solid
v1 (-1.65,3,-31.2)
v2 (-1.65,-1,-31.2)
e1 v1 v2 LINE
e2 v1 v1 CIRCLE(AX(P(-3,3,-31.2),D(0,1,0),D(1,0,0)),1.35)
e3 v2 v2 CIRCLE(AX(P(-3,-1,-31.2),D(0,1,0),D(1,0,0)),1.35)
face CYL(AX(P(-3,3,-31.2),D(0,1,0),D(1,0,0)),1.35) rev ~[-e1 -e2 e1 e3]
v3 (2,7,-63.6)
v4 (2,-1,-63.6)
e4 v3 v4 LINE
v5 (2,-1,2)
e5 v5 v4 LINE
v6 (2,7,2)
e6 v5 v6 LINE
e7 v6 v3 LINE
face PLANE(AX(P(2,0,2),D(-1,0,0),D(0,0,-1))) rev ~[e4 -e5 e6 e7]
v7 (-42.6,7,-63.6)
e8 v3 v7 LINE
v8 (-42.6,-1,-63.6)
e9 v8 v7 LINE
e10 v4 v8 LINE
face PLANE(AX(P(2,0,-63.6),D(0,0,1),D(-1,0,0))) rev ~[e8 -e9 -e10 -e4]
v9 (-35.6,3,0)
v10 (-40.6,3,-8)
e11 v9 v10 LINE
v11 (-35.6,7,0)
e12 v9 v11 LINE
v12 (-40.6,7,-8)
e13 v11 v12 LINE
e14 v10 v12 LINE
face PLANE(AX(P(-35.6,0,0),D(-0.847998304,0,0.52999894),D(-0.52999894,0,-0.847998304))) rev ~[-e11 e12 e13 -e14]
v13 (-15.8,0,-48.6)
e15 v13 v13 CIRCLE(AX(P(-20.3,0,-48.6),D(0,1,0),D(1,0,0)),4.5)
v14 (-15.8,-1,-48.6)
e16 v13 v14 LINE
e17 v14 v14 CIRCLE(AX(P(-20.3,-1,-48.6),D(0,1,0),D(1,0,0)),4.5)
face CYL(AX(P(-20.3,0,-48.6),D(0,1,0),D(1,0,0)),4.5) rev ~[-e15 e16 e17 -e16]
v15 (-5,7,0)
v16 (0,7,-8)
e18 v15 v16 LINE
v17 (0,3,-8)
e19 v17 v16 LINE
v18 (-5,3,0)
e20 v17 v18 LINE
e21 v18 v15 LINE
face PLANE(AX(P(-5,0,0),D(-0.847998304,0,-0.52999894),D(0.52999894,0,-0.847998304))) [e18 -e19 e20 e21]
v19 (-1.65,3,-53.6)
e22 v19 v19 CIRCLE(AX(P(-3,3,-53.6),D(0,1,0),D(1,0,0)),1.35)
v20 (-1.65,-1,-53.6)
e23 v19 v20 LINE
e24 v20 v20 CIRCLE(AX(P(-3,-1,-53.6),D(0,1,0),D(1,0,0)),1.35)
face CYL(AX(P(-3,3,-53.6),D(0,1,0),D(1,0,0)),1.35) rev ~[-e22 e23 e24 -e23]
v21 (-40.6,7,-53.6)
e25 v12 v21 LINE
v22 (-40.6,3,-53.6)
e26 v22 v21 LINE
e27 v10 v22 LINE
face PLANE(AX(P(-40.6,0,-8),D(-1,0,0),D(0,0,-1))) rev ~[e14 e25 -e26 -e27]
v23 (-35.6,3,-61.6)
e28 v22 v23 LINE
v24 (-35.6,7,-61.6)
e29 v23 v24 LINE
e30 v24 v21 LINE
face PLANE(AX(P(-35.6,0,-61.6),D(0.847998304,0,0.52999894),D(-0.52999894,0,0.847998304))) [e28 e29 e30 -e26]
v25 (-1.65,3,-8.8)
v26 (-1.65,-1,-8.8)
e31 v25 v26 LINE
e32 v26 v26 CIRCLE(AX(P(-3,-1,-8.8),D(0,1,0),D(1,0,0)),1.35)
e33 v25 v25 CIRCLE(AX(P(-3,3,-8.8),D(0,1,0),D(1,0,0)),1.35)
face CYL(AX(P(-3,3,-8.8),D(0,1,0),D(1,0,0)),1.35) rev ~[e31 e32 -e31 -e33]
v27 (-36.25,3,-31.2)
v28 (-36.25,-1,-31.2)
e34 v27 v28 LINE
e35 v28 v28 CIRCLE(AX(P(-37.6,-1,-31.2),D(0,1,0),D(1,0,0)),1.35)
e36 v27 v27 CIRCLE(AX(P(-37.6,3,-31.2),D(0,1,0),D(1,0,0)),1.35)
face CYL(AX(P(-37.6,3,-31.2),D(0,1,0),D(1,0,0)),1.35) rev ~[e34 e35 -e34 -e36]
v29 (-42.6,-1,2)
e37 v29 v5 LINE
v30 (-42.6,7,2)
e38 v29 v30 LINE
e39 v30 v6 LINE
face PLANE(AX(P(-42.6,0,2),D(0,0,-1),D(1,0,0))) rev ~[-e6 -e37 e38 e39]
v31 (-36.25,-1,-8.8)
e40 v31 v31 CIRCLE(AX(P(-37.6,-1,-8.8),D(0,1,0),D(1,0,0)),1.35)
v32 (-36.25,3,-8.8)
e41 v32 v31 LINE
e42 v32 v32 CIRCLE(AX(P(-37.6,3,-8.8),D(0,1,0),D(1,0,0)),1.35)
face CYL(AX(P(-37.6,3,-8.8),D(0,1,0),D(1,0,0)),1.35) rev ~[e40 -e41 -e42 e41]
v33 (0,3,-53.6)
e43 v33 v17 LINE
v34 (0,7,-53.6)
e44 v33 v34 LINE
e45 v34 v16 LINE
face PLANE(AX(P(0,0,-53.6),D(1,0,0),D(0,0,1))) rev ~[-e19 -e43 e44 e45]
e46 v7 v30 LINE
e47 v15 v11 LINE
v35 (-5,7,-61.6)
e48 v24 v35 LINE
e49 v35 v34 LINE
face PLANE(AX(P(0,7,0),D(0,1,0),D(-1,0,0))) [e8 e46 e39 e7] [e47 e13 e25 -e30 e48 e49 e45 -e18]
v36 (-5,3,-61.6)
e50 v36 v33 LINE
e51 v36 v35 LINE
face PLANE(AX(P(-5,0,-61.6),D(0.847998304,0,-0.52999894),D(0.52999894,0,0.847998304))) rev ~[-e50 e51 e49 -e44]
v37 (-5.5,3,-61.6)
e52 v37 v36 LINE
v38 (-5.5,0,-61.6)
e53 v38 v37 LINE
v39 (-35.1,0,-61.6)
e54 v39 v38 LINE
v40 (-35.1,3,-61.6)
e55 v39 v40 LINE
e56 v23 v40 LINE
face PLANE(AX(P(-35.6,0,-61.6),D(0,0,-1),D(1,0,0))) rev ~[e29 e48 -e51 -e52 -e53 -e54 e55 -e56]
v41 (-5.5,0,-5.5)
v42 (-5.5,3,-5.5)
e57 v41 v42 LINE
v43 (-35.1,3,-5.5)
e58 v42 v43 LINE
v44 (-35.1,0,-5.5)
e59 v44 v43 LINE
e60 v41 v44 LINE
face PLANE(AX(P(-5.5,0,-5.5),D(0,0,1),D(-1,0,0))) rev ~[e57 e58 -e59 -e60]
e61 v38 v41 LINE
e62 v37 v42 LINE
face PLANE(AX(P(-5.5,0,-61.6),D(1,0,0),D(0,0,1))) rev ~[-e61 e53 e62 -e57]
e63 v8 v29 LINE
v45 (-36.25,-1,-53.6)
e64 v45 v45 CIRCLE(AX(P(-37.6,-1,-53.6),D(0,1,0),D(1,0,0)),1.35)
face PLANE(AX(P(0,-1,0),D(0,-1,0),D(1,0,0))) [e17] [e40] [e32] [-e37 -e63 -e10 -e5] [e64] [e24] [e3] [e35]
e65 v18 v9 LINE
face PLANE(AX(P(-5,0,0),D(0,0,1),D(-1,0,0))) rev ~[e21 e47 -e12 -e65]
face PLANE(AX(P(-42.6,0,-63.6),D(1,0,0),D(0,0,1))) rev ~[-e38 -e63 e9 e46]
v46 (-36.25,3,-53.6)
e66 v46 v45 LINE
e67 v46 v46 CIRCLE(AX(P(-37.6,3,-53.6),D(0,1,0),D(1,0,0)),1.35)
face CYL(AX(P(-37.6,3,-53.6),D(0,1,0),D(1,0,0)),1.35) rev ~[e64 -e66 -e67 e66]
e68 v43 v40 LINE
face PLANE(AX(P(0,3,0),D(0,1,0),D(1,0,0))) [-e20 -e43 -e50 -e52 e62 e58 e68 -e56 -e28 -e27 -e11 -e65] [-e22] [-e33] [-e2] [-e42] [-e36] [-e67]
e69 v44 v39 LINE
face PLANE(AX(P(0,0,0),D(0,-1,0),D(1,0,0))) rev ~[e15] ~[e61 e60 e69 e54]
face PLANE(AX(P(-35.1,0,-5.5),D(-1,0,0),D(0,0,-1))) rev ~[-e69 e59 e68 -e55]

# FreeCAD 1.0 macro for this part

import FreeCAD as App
import Part
import Sketcher
from FreeCAD import Vector
Q = App.Units.Quantity


def add_polygon(sketch, points):
    """Adds a closed chain of lines whose ends are joined by coincident constraints."""
    first, n = sketch.GeometryCount, len(points)
    for a, b in zip(points, points[1:] + points[:1]):
        sketch.addGeometry(Part.LineSegment(App.Vector(*a, 0), App.Vector(*b, 0)), False)
    for i in range(n):
        sketch.addConstraint(Sketcher.Constraint("Coincident", first + i, 2, first + (i + 1) % n, 1))

doc = App.newDocument("Part")
params = doc.addObject("Spreadsheet::Sheet", "Params")
for row, (alias, value) in enumerate([
    ("pad1_length", "7 mm"),
    ("sketch2_width", "44.6 mm"),
    ("sketch2_height", "65.6 mm"),
    ("pad2_length", "1 mm"),
    ("sketch3_width", "0.5 mm"),
    ("sketch3_width2", "29.6 mm"),
    ("sketch3_height", "45.6 mm"),
    ("sketch3_height2", "56.1 mm"),
    ("pad3_length", "3 mm"),
    ("sketch4_diameter", "9 mm"),
    ("pocket1_length", "7 mm"),
    ("sketch5_diameter", "2.7 mm"),
], start=1):
    params.set(f"A{row}", alias)
    params.set(f"B{row}", "=" + value)
    params.setAlias(f"B{row}", alias)

body = doc.addObject("PartDesign::Body", "Body")

sketch1 = doc.addObject("Sketcher::SketchObject", "Sketch")
body.addObject(sketch1)
sketch1.AttachmentSupport = (doc.XZ_Plane, [""])
sketch1.MapMode = "FlatFace"
add_polygon(sketch1, [(2, -64), (-43, -64), (-43, 2), (2, 2)])
add_polygon(sketch1, [(0, -8), (-5, 0), (-36, 0), (-41, -8), (-41, -54), (-36, -62), (-5, -62), (0, -54)])
sketch1.addConstraint(Sketcher.Constraint("Horizontal", 0))
sketch1.addConstraint(Sketcher.Constraint("Vertical", 1))
sketch1.addConstraint(Sketcher.Constraint("Horizontal", 2))
sketch1.addConstraint(Sketcher.Constraint("Vertical", 3))
sketch1.addConstraint(Sketcher.Constraint("Horizontal", 5))
sketch1.addConstraint(Sketcher.Constraint("Vertical", 7))
sketch1.addConstraint(Sketcher.Constraint("Horizontal", 9))
sketch1.addConstraint(Sketcher.Constraint("Vertical", 11))
sketch1.addConstraint(Sketcher.Constraint("PointOnObject", 4, 2, -1))
sketch1.addConstraint(Sketcher.Constraint("PointOnObject", 10, 2, -2))
sketch1.addConstraint(Sketcher.Constraint("Parallel", 4, 8))
sketch1.addConstraint(Sketcher.Constraint("Parallel", 6, 10))
sketch1.addConstraint(Sketcher.Constraint("Horizontal", 7, 2, 10, 2))
sketch1.addConstraint(Sketcher.Constraint("Horizontal", 6, 2, 11, 2))
sketch1.addConstraint(Sketcher.Constraint("Vertical", 5, 2, 8, 2))
sketch1.addConstraint(Sketcher.Constraint("Vertical", 4, 2, 9, 2))
sketch1.addConstraint(Sketcher.Constraint("DistanceY", -1, 1, 1, 2, Q("2 mm")))
sketch1.addConstraint(Sketcher.Constraint("DistanceX", -1, 1, 2, 2, Q("2 mm")))
sketch1.addConstraint(Sketcher.Constraint("DistanceX", 4, 2, -1, 1, Q("5 mm")))
sketch1.addConstraint(Sketcher.Constraint("DistanceY", 6, 2, -1, 1, Q("8 mm")))
sketch1.addConstraint(Sketcher.Constraint("DistanceX", 1, 2, 6, 2, Q("2 mm")))
sketch1.addConstraint(Sketcher.Constraint("DistanceY", 0, 2, 8, 2, Q("2 mm")))
sketch1.addConstraint(Sketcher.Constraint("DistanceX", 6, 2, -1, 1, Q("40.6 mm")))
sketch1.addConstraint(Sketcher.Constraint("DistanceY", 8, 2, -1, 1, Q("61.6 mm")))
pad1 = doc.addObject("PartDesign::Pad", "Pad")
body.addObject(pad1)
pad1.Profile = sketch1
pad1.setExpression("Length", "Params.pad1_length")
pad1.Reversed = True

sketch2 = doc.addObject("Sketcher::SketchObject", "Sketch001")
body.addObject(sketch2)
sketch2.AttachmentSupport = (doc.XZ_Plane, [""])
sketch2.MapMode = "FlatFace"
add_polygon(sketch2, [(2, 2), (-43, 2), (-43, -64), (2, -64)])
sketch2.addConstraint(Sketcher.Constraint("Horizontal", 0))
sketch2.addConstraint(Sketcher.Constraint("Vertical", 1))
sketch2.addConstraint(Sketcher.Constraint("Horizontal", 2))
sketch2.addConstraint(Sketcher.Constraint("Vertical", 3))
sketch2.addConstraint(Sketcher.Constraint("DistanceX", 0, 2, 0, 1, Q("44.6 mm")))
sketch2.addConstraint(Sketcher.Constraint("DistanceY", 1, 2, 1, 1, Q("65.6 mm")))
sketch2.addConstraint(Sketcher.Constraint("DistanceY", -1, 1, 0, 2, Q("2 mm")))
sketch2.addConstraint(Sketcher.Constraint("DistanceX", -1, 1, 2, 2, Q("2 mm")))
sketch2.setExpression("Constraints[8]", "Params.sketch2_width")
sketch2.setExpression("Constraints[9]", "Params.sketch2_height")
pad2 = doc.addObject("PartDesign::Pad", "Pad001")
body.addObject(pad2)
pad2.Profile = sketch2
pad2.setExpression("Length", "Params.pad2_length")

sketch3 = doc.addObject("Sketcher::SketchObject", "Sketch002")
body.addObject(sketch3)
sketch3.AttachmentSupport = (doc.XZ_Plane, [""])
sketch3.MapMode = "FlatFace"
add_polygon(sketch3, [(0, -8), (0, -53.6), (-5, -61.6), (-5.5, -61.6), (-5.5, -5.5), (-35.1, -5.5), (-35.1, -61.6), (-35.6, -61.6), (-40.6, -53.6), (-40.6, -8), (-35.6, 0), (-5, 0)])
sketch3.addConstraint(Sketcher.Constraint("Vertical", 0))
sketch3.addConstraint(Sketcher.Constraint("Horizontal", 2))
sketch3.addConstraint(Sketcher.Constraint("Vertical", 3))
sketch3.addConstraint(Sketcher.Constraint("Horizontal", 4))
sketch3.addConstraint(Sketcher.Constraint("Vertical", 5))
sketch3.addConstraint(Sketcher.Constraint("Horizontal", 6))
sketch3.addConstraint(Sketcher.Constraint("Vertical", 8))
sketch3.addConstraint(Sketcher.Constraint("Horizontal", 10))
sketch3.addConstraint(Sketcher.Constraint("PointOnObject", 0, 2, -2))
sketch3.addConstraint(Sketcher.Constraint("PointOnObject", 9, 2, -1))
sketch3.addConstraint(Sketcher.Constraint("Parallel", 1, 9))
sketch3.addConstraint(Sketcher.Constraint("Parallel", 7, 11))
sketch3.addConstraint(Sketcher.Constraint("Horizontal", 2, 2, 5, 2))
sketch3.addConstraint(Sketcher.Constraint("Horizontal", 0, 2, 7, 2))
sketch3.addConstraint(Sketcher.Constraint("Horizontal", 8, 2, 11, 2))
sketch3.addConstraint(Sketcher.Constraint("Vertical", 6, 2, 9, 2))
sketch3.addConstraint(Sketcher.Constraint("Vertical", 1, 2, 10, 2))
sketch3.addConstraint(Sketcher.Constraint("Equal", 2, 6))
sketch3.addConstraint(Sketcher.Constraint("DistanceX", 2, 2, -1, 1, Q("5.5 mm")))
sketch3.addConstraint(Sketcher.Constraint("DistanceY", 3, 2, -1, 1, Q("5.5 mm")))
sketch3.addConstraint(Sketcher.Constraint("DistanceX", 2, 2, 2, 1, Q("0.5 mm")))
sketch3.addConstraint(Sketcher.Constraint("DistanceX", 4, 2, 4, 1, Q("29.6 mm")))
sketch3.addConstraint(Sketcher.Constraint("DistanceY", 0, 2, 0, 1, Q("45.6 mm")))
sketch3.addConstraint(Sketcher.Constraint("DistanceY", 3, 1, 3, 2, Q("56.1 mm")))
sketch3.setExpression("Constraints[32]", "Params.sketch3_width")
sketch3.setExpression("Constraints[33]", "Params.sketch3_width2")
sketch3.setExpression("Constraints[34]", "Params.sketch3_height")
sketch3.setExpression("Constraints[35]", "Params.sketch3_height2")
pad3 = doc.addObject("PartDesign::Pad", "Pad002")
body.addObject(pad3)
pad3.Profile = sketch3
pad3.setExpression("Length", "Params.pad3_length")
pad3.Reversed = True

sketch4 = doc.addObject("Sketcher::SketchObject", "Sketch003")
body.addObject(sketch4)
sketch4.AttachmentSupport = (doc.XZ_Plane, [""])
sketch4.MapMode = "FlatFace"
sketch4.addGeometry(Part.Circle(Vector(-20.3, -48.6, 0), Vector(0, 0, 1), 4.5), False)
sketch4.addConstraint(Sketcher.Constraint("Diameter", 0, Q("9 mm")))
sketch4.addConstraint(Sketcher.Constraint("DistanceX", 0, 3, -1, 1, Q("20.3 mm")))
sketch4.addConstraint(Sketcher.Constraint("DistanceY", 0, 3, -1, 1, Q("48.6 mm")))
sketch4.setExpression("Constraints[0]", "Params.sketch4_diameter")
pocket1 = doc.addObject("PartDesign::Pocket", "Pocket")
body.addObject(pocket1)
pocket1.Profile = sketch4
pocket1.setExpression("Length", "Params.pocket1_length")
pocket1.Reversed = True

sketch5 = doc.addObject("Sketcher::SketchObject", "Sketch004")
body.addObject(sketch5)
sketch5.AttachmentSupport = (doc.XZ_Plane, [""])
sketch5.MapMode = "FlatFace"
sketch5.AttachmentOffset = App.Placement(Vector(0, 0, -3), App.Rotation())
sketch5.addGeometry(Part.Circle(Vector(-37.6, -53.6, 0), Vector(0, 0, 1), 1.4), False)
sketch5.addGeometry(Part.Circle(Vector(-37.6, -31.2, 0), Vector(0, 0, 1), 1.4), False)
sketch5.addGeometry(Part.Circle(Vector(-37.6, -8.8, 0), Vector(0, 0, 1), 1.4), False)
sketch5.addGeometry(Part.Circle(Vector(-3, -53.6, 0), Vector(0, 0, 1), 1.4), False)
sketch5.addGeometry(Part.Circle(Vector(-3, -31.2, 0), Vector(0, 0, 1), 1.4), False)
sketch5.addGeometry(Part.Circle(Vector(-3, -8.8, 0), Vector(0, 0, 1), 1.4), False)
sketch5.addConstraint(Sketcher.Constraint("Equal", 0, 1))
sketch5.addConstraint(Sketcher.Constraint("Equal", 1, 2))
sketch5.addConstraint(Sketcher.Constraint("Equal", 2, 3))
sketch5.addConstraint(Sketcher.Constraint("Equal", 3, 4))
sketch5.addConstraint(Sketcher.Constraint("Equal", 4, 5))
sketch5.addConstraint(Sketcher.Constraint("Horizontal", 0, 3, 3, 3))
sketch5.addConstraint(Sketcher.Constraint("Horizontal", 1, 3, 4, 3))
sketch5.addConstraint(Sketcher.Constraint("Horizontal", 2, 3, 5, 3))
sketch5.addConstraint(Sketcher.Constraint("Vertical", 0, 3, 1, 3))
sketch5.addConstraint(Sketcher.Constraint("Vertical", 1, 3, 2, 3))
sketch5.addConstraint(Sketcher.Constraint("Vertical", 3, 3, 4, 3))
sketch5.addConstraint(Sketcher.Constraint("Vertical", 4, 3, 5, 3))
sketch5.addConstraint(Sketcher.Constraint("Diameter", 0, Q("2.7 mm")))
sketch5.addConstraint(Sketcher.Constraint("DistanceY", 0, 3, 1, 3, Q("22.4 mm")))
sketch5.addConstraint(Sketcher.Constraint("DistanceY", 1, 3, 2, 3, Q("22.4 mm")))
sketch5.addConstraint(Sketcher.Constraint("DistanceX", 0, 3, 3, 3, Q("34.6 mm")))
sketch5.addConstraint(Sketcher.Constraint("DistanceX", 3, 3, -1, 1, Q("3 mm")))
sketch5.addConstraint(Sketcher.Constraint("DistanceY", 0, 3, -1, 1, Q("53.6 mm")))
sketch5.setExpression("Constraints[12]", "Params.sketch5_diameter")
pocket2 = doc.addObject("PartDesign::Pocket", "Pocket001")
body.addObject(pocket2)
pocket2.Profile = sketch5
pocket2.Type = "ThroughAll"
pocket2.Reversed = True

doc.recompute()
